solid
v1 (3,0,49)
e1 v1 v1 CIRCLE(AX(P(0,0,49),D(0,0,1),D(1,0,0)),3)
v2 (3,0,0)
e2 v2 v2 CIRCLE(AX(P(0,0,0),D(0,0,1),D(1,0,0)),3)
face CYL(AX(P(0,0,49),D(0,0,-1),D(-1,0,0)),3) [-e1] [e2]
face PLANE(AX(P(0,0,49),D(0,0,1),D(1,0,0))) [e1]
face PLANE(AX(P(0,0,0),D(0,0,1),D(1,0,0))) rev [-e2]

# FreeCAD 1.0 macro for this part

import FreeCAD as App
import Part
import Sketcher

V = App.Vector
Q = App.Units.Quantity

doc = App.newDocument("Part")
params = doc.addObject("Spreadsheet::Sheet", "Params")
for row, (alias, value) in enumerate([
    ("sketch1_diameter", "6 mm"),
    ("pad1_length", "49 mm"),
], start=1):
    params.set(f"A{row}", alias)
    params.set(f"B{row}", "=" + value)
    params.setAlias(f"B{row}", alias)

body = doc.addObject("PartDesign::Body", "Body")

# Sketch on XY plane
sketch1 = body.newObject("Sketcher::SketchObject", "Sketch")
sketch1.AttachmentSupport = (doc.getObject("XY_Plane"), [""])
sketch1.MapMode = "FlatFace"
sketch1.addGeometry(Part.Circle(V(0, 0, 0), V(0, 0, 1), 3), False)
sketch1.addConstraint(Sketcher.Constraint("Coincident", 0, 3, -1, 1))
sketch1.addConstraint(Sketcher.Constraint("Diameter", 0, Q("6 mm")))
sketch1.setExpression("Constraints[1]", "Params.sketch1_diameter")
pad1 = body.newObject("PartDesign::Pad", "Pad")
pad1.Profile = sketch1
pad1.setExpression("Length", "Params.pad1_length")

doc.recompute()
